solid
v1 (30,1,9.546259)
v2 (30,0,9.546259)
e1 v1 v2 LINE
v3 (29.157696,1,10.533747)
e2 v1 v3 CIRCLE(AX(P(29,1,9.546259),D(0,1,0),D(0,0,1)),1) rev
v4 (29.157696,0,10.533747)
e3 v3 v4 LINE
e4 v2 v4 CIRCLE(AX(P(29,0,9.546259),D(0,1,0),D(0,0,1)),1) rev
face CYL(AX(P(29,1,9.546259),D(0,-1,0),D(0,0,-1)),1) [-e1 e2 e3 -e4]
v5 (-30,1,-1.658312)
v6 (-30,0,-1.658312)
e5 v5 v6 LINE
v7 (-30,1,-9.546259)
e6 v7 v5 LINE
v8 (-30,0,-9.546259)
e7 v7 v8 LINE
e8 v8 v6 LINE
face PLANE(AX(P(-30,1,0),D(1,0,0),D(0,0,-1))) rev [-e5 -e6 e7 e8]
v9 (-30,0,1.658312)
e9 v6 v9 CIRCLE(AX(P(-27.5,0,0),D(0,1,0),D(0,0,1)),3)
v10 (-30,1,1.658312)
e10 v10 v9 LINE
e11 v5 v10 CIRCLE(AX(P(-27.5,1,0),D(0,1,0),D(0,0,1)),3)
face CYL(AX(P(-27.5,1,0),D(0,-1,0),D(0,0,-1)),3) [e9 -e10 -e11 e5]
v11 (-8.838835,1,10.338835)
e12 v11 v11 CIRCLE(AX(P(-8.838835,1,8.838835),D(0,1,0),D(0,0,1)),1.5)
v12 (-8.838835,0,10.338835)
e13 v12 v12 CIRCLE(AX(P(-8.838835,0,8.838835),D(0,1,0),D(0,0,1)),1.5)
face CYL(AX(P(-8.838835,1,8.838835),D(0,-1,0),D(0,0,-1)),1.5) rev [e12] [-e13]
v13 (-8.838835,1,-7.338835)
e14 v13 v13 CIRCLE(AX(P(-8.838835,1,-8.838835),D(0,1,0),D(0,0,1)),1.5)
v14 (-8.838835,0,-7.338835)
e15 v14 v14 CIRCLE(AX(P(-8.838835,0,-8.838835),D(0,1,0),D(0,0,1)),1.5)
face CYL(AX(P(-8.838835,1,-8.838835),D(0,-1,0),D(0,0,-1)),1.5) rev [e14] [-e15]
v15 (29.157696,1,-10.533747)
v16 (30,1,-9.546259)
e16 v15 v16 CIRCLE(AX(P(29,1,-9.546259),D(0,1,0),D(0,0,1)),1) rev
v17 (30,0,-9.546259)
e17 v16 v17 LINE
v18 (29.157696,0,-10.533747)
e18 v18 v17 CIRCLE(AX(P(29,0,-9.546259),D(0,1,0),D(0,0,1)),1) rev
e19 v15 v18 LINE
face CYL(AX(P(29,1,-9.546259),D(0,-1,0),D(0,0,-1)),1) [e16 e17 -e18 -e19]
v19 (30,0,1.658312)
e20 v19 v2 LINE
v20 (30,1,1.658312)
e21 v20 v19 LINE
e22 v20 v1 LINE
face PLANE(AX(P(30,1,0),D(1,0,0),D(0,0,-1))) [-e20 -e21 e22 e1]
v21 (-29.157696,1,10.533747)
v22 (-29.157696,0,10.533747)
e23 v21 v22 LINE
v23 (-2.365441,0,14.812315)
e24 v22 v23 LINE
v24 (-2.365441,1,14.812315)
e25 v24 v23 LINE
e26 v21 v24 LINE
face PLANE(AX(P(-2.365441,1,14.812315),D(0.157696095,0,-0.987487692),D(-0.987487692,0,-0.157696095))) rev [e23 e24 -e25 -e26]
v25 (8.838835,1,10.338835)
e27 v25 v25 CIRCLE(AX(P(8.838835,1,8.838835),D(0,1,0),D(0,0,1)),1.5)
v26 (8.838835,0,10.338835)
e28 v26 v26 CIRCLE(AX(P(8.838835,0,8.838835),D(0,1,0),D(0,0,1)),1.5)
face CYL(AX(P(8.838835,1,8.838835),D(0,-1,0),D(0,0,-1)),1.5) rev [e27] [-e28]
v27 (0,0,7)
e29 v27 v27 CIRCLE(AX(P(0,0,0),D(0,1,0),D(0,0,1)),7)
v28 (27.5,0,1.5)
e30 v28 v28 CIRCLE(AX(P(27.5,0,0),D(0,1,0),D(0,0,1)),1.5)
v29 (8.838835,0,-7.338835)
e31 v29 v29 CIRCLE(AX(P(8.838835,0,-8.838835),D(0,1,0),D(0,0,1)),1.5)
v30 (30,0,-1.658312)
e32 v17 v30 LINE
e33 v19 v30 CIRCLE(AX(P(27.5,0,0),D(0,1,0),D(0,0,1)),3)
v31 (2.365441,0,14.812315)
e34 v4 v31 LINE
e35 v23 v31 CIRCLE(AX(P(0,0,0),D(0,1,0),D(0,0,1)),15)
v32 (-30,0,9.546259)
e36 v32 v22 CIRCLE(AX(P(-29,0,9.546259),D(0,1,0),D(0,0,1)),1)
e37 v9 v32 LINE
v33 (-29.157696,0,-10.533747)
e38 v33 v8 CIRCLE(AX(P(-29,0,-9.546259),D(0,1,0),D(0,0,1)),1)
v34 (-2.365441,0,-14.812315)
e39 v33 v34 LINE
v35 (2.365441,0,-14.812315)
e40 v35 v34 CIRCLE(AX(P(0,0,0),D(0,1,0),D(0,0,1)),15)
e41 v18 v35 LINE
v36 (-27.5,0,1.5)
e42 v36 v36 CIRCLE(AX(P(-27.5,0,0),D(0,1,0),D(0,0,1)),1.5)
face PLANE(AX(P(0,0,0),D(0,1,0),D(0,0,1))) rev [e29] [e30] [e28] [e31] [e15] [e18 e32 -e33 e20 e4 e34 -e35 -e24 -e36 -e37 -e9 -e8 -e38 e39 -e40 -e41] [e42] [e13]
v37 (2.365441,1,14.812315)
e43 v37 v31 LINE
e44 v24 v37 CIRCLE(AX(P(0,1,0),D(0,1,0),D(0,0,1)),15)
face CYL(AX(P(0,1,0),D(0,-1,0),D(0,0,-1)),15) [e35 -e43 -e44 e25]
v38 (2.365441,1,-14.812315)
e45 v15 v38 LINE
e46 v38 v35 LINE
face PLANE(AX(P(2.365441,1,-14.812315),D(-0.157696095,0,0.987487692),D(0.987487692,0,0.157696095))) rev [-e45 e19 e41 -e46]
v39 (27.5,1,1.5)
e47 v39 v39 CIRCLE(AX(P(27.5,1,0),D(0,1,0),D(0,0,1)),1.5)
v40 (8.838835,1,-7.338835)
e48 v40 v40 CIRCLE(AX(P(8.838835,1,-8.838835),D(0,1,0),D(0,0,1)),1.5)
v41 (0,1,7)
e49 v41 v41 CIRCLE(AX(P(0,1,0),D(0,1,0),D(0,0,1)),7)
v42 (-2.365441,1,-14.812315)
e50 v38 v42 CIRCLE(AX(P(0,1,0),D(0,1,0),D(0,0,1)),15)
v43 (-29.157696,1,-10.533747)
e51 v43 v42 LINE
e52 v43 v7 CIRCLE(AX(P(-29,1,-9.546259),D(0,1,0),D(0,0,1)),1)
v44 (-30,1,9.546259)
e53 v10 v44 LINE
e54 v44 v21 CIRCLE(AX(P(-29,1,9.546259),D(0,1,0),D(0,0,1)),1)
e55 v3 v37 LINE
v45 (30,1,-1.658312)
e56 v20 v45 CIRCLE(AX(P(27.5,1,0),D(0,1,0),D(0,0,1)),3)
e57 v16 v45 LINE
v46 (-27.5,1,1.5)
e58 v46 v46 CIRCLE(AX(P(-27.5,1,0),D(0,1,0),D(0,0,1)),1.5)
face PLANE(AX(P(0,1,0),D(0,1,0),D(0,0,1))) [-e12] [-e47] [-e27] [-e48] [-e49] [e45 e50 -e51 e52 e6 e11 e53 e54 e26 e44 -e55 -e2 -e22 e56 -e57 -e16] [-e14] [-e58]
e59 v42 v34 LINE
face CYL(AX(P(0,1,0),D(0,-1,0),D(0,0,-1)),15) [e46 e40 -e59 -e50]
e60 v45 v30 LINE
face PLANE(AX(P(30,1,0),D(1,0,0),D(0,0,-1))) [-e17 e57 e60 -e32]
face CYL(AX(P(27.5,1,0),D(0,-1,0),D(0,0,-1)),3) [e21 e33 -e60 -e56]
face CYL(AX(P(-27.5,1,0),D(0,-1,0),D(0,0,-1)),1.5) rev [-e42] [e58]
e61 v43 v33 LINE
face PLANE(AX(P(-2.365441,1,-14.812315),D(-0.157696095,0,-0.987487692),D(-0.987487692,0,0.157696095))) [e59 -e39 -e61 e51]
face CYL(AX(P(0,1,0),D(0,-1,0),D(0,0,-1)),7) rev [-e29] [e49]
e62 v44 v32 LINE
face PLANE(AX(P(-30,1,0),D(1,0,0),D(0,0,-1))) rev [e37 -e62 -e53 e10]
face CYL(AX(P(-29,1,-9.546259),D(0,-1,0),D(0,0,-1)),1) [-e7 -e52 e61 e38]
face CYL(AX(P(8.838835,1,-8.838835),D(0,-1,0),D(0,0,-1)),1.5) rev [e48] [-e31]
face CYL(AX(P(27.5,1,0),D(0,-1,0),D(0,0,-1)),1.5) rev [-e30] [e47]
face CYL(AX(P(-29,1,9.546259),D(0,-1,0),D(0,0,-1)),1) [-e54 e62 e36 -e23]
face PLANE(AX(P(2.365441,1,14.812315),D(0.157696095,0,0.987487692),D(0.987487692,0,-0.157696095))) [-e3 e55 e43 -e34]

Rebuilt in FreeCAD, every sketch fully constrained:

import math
import FreeCAD as App
import Part
import Sketcher

V = App.Vector
Q = App.Units.Quantity

doc = App.newDocument("Part")
body = doc.addObject("PartDesign::Body", "Body")

# Sketch on XZ plane
sketch1 = body.newObject("Sketcher::SketchObject", "Sketch")
sketch1.AttachmentSupport = (doc.getObject("XZ_Plane"), [""])
sketch1.MapMode = "FlatFace"
sketch1.addGeometry(Part.LineSegment(V(-2.4, -14.8, 0), V(-29.2, -10.5, 0)), False)
sketch1.addGeometry(Part.ArcOfCircle(Part.Circle(V(-29, -9.5, 0), V(0, 0, 1), 1), math.radians(180), math.radians(261)), False)
sketch1.addGeometry(Part.LineSegment(V(-30, -9.5, 0), V(-30, -1.7, 0)), False)
sketch1.addGeometry(Part.ArcOfCircle(Part.Circle(V(-27.5, 0, 0), V(0, 0, 1), 3), math.radians(146), math.radians(214)), False)
sketch1.addGeometry(Part.LineSegment(V(-30, 1.7, 0), V(-30, 9.5, 0)), False)
sketch1.addGeometry(Part.ArcOfCircle(Part.Circle(V(-29, 9.5, 0), V(0, 0, 1), 1), math.radians(99), math.radians(180)), False)
sketch1.addGeometry(Part.LineSegment(V(-29.2, 10.5, 0), V(-2.4, 14.8, 0)), False)
sketch1.addGeometry(Part.ArcOfCircle(Part.Circle(V(0, 0, 0), V(0, 0, 1), 15), math.radians(80.93), math.radians(99.07)), False)
sketch1.addGeometry(Part.LineSegment(V(2.4, 14.8, 0), V(29.2, 10.5, 0)), False)
sketch1.addGeometry(Part.ArcOfCircle(Part.Circle(V(29, 9.5, 0), V(0, 0, 1), 1), math.radians(0), math.radians(81)), False)
sketch1.addGeometry(Part.LineSegment(V(30, 9.5, 0), V(30, 1.7, 0)), False)
sketch1.addGeometry(Part.ArcOfCircle(Part.Circle(V(27.5, 0, 0), V(0, 0, 1), 3), math.radians(-34), math.radians(34)), False)
sketch1.addGeometry(Part.LineSegment(V(30, -1.7, 0), V(30, -9.5, 0)), False)
sketch1.addGeometry(Part.ArcOfCircle(Part.Circle(V(29, -9.5, 0), V(0, 0, 1), 1), math.radians(-81), math.radians(0)), False)
sketch1.addGeometry(Part.LineSegment(V(29.2, -10.5, 0), V(2.4, -14.8, 0)), False)
sketch1.addGeometry(Part.ArcOfCircle(Part.Circle(V(0, 0, 0), V(0, 0, 1), 15), math.radians(-99.07), math.radians(-80.93)), False)
sketch1.addGeometry(Part.Circle(V(-8.8, 8.8, 0), V(0, 0, 1), 1.5), False)
sketch1.addGeometry(Part.Circle(V(8.8, 8.8, 0), V(0, 0, 1), 1.5), False)
sketch1.addGeometry(Part.Circle(V(-27.5, 0, 0), V(0, 0, 1), 1.5), False)
sketch1.addGeometry(Part.Circle(V(-8.8, -8.8, 0), V(0, 0, 1), 1.5), False)
sketch1.addGeometry(Part.Circle(V(0, 0, 0), V(0, 0, 1), 7), False)
sketch1.addGeometry(Part.Circle(V(27.5, 0, 0), V(0, 0, 1), 1.5), False)
sketch1.addGeometry(Part.Circle(V(8.8, -8.8, 0), V(0, 0, 1), 1.5), False)
sketch1.addConstraint(Sketcher.Constraint("Tangent", 0, 2, 1, 2))
sketch1.addConstraint(Sketcher.Constraint("Tangent", 1, 1, 2, 1))
sketch1.addConstraint(Sketcher.Constraint("Coincident", 2, 2, 3, 2))
sketch1.addConstraint(Sketcher.Constraint("Coincident", 3, 1, 4, 1))
sketch1.addConstraint(Sketcher.Constraint("Tangent", 4, 2, 5, 2))
sketch1.addConstraint(Sketcher.Constraint("Tangent", 5, 1, 6, 1))
sketch1.addConstraint(Sketcher.Constraint("Tangent", 6, 2, 7, 2))
sketch1.addConstraint(Sketcher.Constraint("Tangent", 7, 1, 8, 1))
sketch1.addConstraint(Sketcher.Constraint("Tangent", 8, 2, 9, 2))
sketch1.addConstraint(Sketcher.Constraint("Tangent", 9, 1, 10, 1))
sketch1.addConstraint(Sketcher.Constraint("Coincident", 10, 2, 11, 2))
sketch1.addConstraint(Sketcher.Constraint("Coincident", 11, 1, 12, 1))
sketch1.addConstraint(Sketcher.Constraint("Tangent", 12, 2, 13, 2))
sketch1.addConstraint(Sketcher.Constraint("Tangent", 13, 1, 14, 1))
sketch1.addConstraint(Sketcher.Constraint("Tangent", 14, 2, 15, 2))
sketch1.addConstraint(Sketcher.Constraint("Tangent", 15, 1, 0, 1))
sketch1.addConstraint(Sketcher.Constraint("Vertical", 2))
sketch1.addConstraint(Sketcher.Constraint("Vertical", 4))
sketch1.addConstraint(Sketcher.Constraint("Vertical", 10))
sketch1.addConstraint(Sketcher.Constraint("Vertical", 12))
sketch1.addConstraint(Sketcher.Constraint("Coincident", 7, 3, -1, 1))
sketch1.addConstraint(Sketcher.Constraint("Coincident", 15, 3, -1, 1))
sketch1.addConstraint(Sketcher.Constraint("Coincident", 20, 3, -1, 1))
sketch1.addConstraint(Sketcher.Constraint("Coincident", 18, 3, 3, 3))
sketch1.addConstraint(Sketcher.Constraint("Coincident", 21, 3, 11, 3))
sketch1.addConstraint(Sketcher.Constraint("Equal", 1, 5))
sketch1.addConstraint(Sketcher.Constraint("Equal", 5, 9))
sketch1.addConstraint(Sketcher.Constraint("Equal", 3, 11))
sketch1.addConstraint(Sketcher.Constraint("Equal", 9, 13))
sketch1.addConstraint(Sketcher.Constraint("Equal", 7, 15))
sketch1.addConstraint(Sketcher.Constraint("Equal", 16, 17))
sketch1.addConstraint(Sketcher.Constraint("Equal", 17, 18))
sketch1.addConstraint(Sketcher.Constraint("Equal", 18, 19))
sketch1.addConstraint(Sketcher.Constraint("Equal", 19, 21))
sketch1.addConstraint(Sketcher.Constraint("Equal", 21, 22))
sketch1.addConstraint(Sketcher.Constraint("Symmetric", 1, 3, 9, 3, -1, 1))
sketch1.addConstraint(Sketcher.Constraint("Symmetric", 3, 3, 11, 3, -1, 1))
sketch1.addConstraint(Sketcher.Constraint("Symmetric", 5, 3, 13, 3, -1, 1))
sketch1.addConstraint(Sketcher.Constraint("Symmetric", 17, 3, 19, 3, -1, 1))
sketch1.addConstraint(Sketcher.Constraint("Symmetric", 16, 3, 22, 3, -1, 1))
sketch1.addConstraint(Sketcher.Constraint("Symmetric", 5, 3, 9, 3, -2))
sketch1.addConstraint(Sketcher.Constraint("Symmetric", 16, 3, 17, 3, -2))
sketch1.addConstraint(Sketcher.Constraint("PointOnObject", 3, 3, -1))
sketch1.addConstraint(Sketcher.Constraint("Diameter", 16, Q("3 mm")))
sketch1.addConstraint(Sketcher.Constraint("Diameter", 20, Q("14 mm")))
sketch1.addConstraint(Sketcher.Constraint("Radius", 1, Q("1 mm")))
sketch1.addConstraint(Sketcher.Constraint("Radius", 3, Q("3 mm")))
sketch1.addConstraint(Sketcher.Constraint("Radius", 7, Q("15 mm")))
sketch1.addConstraint(Sketcher.Constraint("DistanceX", 1, 3, -1, 1, Q("29 mm")))
sketch1.addConstraint(Sketcher.Constraint("DistanceX", 3, 3, 11, 3, Q("55 mm")))
sketch1.addConstraint(Sketcher.Constraint("DistanceY", 2, 1, 2, 2, Q("7.887947 mm")))
sketch1.addConstraint(Sketcher.Constraint("DistanceX", 16, 3, 17, 3, Q("17.67767 mm")))
sketch1.addConstraint(Sketcher.Constraint("DistanceY", 19, 3, 16, 3, Q("17.67767 mm")))
pad1 = body.newObject("PartDesign::Pad", "Pad")
pad1.Profile = sketch1
pad1.Length = 1
pad1.Reversed = True

doc.recompute()
